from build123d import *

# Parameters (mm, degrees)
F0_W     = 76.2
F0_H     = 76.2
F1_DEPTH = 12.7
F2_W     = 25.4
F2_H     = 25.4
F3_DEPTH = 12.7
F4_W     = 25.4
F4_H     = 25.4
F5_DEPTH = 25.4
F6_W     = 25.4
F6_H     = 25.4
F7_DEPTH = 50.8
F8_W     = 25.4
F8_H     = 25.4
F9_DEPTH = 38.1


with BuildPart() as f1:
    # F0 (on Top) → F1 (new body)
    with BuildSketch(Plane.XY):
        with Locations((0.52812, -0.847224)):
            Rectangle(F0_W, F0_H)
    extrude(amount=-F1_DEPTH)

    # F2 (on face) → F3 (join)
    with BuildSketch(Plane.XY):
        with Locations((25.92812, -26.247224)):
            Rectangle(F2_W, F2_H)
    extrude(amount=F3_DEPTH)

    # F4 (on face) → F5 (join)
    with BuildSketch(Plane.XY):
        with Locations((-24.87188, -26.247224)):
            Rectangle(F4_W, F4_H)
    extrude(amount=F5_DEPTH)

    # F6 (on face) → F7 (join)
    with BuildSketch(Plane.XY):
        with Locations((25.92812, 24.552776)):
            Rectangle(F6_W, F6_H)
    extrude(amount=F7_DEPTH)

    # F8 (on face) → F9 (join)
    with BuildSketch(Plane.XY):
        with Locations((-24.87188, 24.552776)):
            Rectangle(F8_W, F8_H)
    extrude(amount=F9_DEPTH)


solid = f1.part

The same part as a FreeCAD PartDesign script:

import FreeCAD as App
import Part
import Sketcher
Q = App.Units.Quantity

doc = App.newDocument("Part")
body = doc.addObject("PartDesign::Body", "Body")

# Sketch on XY plane
sketch1 = doc.addObject("Sketcher::SketchObject", "Sketch")
body.addObject(sketch1)
sketch1.AttachmentSupport = (doc.XY_Plane, [""])
sketch1.MapMode = "FlatFace"
sketch1.addGeometry(Part.LineSegment(App.Vector(-38, 37, 0), App.Vector(-38, -39, 0)), False)
sketch1.addGeometry(Part.LineSegment(App.Vector(-38, -39, 0), App.Vector(39, -39, 0)), False)
sketch1.addGeometry(Part.LineSegment(App.Vector(39, -39, 0), App.Vector(39, 37, 0)), False)
sketch1.addGeometry(Part.LineSegment(App.Vector(39, 37, 0), App.Vector(-38, 37, 0)), False)
sketch1.addConstraint(Sketcher.Constraint("Coincident", 0, 2, 1, 1))
sketch1.addConstraint(Sketcher.Constraint("Coincident", 1, 2, 2, 1))
sketch1.addConstraint(Sketcher.Constraint("Coincident", 2, 2, 3, 1))
sketch1.addConstraint(Sketcher.Constraint("Coincident", 3, 2, 0, 1))
sketch1.addConstraint(Sketcher.Constraint("Vertical", 0))
sketch1.addConstraint(Sketcher.Constraint("Horizontal", 1))
sketch1.addConstraint(Sketcher.Constraint("Vertical", 2))
sketch1.addConstraint(Sketcher.Constraint("Horizontal", 3))
sketch1.addConstraint(Sketcher.Constraint("Equal", 3, 0))
sketch1.addConstraint(Sketcher.Constraint("DistanceX", 1, 1, 1, 2, Q("3 in")))
sketch1.addConstraint(Sketcher.Constraint("DistanceX", 0, 2, -1, 1, Q("37.57188 mm")))
sketch1.addConstraint(Sketcher.Constraint("DistanceY", 0, 2, -1, 1, Q("38.947224 mm")))
pad1 = doc.addObject("PartDesign::Pad", "Pad")
body.addObject(pad1)
pad1.Profile = sketch1
pad1.Length = Q("0.5 in")
pad1.Reversed = True

# Sketch on XY plane
sketch2 = doc.addObject("Sketcher::SketchObject", "Sketch001")
body.addObject(sketch2)
sketch2.AttachmentSupport = (doc.XY_Plane, [""])
sketch2.MapMode = "FlatFace"
sketch2.addGeometry(Part.LineSegment(App.Vector(13, -14, 0), App.Vector(13, -39, 0)), False)
sketch2.addGeometry(Part.LineSegment(App.Vector(13, -39, 0), App.Vector(39, -39, 0)), False)
sketch2.addGeometry(Part.LineSegment(App.Vector(39, -39, 0), App.Vector(39, -14, 0)), False)
sketch2.addGeometry(Part.LineSegment(App.Vector(39, -14, 0), App.Vector(13, -14, 0)), False)
sketch2.addConstraint(Sketcher.Constraint("Coincident", 0, 2, 1, 1))
sketch2.addConstraint(Sketcher.Constraint("Coincident", 1, 2, 2, 1))
sketch2.addConstraint(Sketcher.Constraint("Coincident", 2, 2, 3, 1))
sketch2.addConstraint(Sketcher.Constraint("Coincident", 3, 2, 0, 1))
sketch2.addConstraint(Sketcher.Constraint("Vertical", 0))
sketch2.addConstraint(Sketcher.Constraint("Horizontal", 1))
sketch2.addConstraint(Sketcher.Constraint("Vertical", 2))
sketch2.addConstraint(Sketcher.Constraint("Horizontal", 3))
sketch2.addConstraint(Sketcher.Constraint("Equal", 3, 0))
sketch2.addConstraint(Sketcher.Constraint("DistanceX", 1, 1, 1, 2, Q("1 in")))
sketch2.addConstraint(Sketcher.Constraint("DistanceX", -1, 1, 0, 2, Q("13.22812 mm")))
sketch2.addConstraint(Sketcher.Constraint("DistanceY", 0, 2, -1, 1, Q("38.947224 mm")))
pad2 = doc.addObject("PartDesign::Pad", "Pad001")
body.addObject(pad2)
pad2.Profile = sketch2
pad2.Length = Q("0.5 in")

# Sketch on XY plane
sketch3 = doc.addObject("Sketcher::SketchObject", "Sketch002")
body.addObject(sketch3)
sketch3.AttachmentSupport = (doc.XY_Plane, [""])
sketch3.MapMode = "FlatFace"
sketch3.addGeometry(Part.LineSegment(App.Vector(-38, -14, 0), App.Vector(-38, -39, 0)), False)
sketch3.addGeometry(Part.LineSegment(App.Vector(-38, -39, 0), App.Vector(-12, -39, 0)), False)
sketch3.addGeometry(Part.LineSegment(App.Vector(-12, -39, 0), App.Vector(-12, -14, 0)), False)
sketch3.addGeometry(Part.LineSegment(App.Vector(-12, -14, 0), App.Vector(-38, -14, 0)), False)
sketch3.addConstraint(Sketcher.Constraint("Coincident", 0, 2, 1, 1))
sketch3.addConstraint(Sketcher.Constraint("Coincident", 1, 2, 2, 1))
sketch3.addConstraint(Sketcher.Constraint("Coincident", 2, 2, 3, 1))
sketch3.addConstraint(Sketcher.Constraint("Coincident", 3, 2, 0, 1))
sketch3.addConstraint(Sketcher.Constraint("Vertical", 0))
sketch3.addConstraint(Sketcher.Constraint("Horizontal", 1))
sketch3.addConstraint(Sketcher.Constraint("Vertical", 2))
sketch3.addConstraint(Sketcher.Constraint("Horizontal", 3))
sketch3.addConstraint(Sketcher.Constraint("Equal", 3, 0))
sketch3.addConstraint(Sketcher.Constraint("DistanceX", 1, 1, 1, 2, Q("1 in")))
sketch3.addConstraint(Sketcher.Constraint("DistanceX", 0, 2, -1, 1, Q("37.57188 mm")))
sketch3.addConstraint(Sketcher.Constraint("DistanceY", 0, 2, -1, 1, Q("38.947224 mm")))
pad3 = doc.addObject("PartDesign::Pad", "Pad002")
body.addObject(pad3)
pad3.Profile = sketch3
pad3.Length = Q("1 in")

# Sketch on XY plane
sketch4 = doc.addObject("Sketcher::SketchObject", "Sketch003")
body.addObject(sketch4)
sketch4.AttachmentSupport = (doc.XY_Plane, [""])
sketch4.MapMode = "FlatFace"
sketch4.addGeometry(Part.LineSegment(App.Vector(13, 37, 0), App.Vector(13, 12, 0)), False)
sketch4.addGeometry(Part.LineSegment(App.Vector(13, 12, 0), App.Vector(39, 12, 0)), False)
sketch4.addGeometry(Part.LineSegment(App.Vector(39, 12, 0), App.Vector(39, 37, 0)), False)
sketch4.addGeometry(Part.LineSegment(App.Vector(39, 37, 0), App.Vector(13, 37, 0)), False)
sketch4.addConstraint(Sketcher.Constraint("Coincident", 0, 2, 1, 1))
sketch4.addConstraint(Sketcher.Constraint("Coincident", 1, 2, 2, 1))
sketch4.addConstraint(Sketcher.Constraint("Coincident", 2, 2, 3, 1))
sketch4.addConstraint(Sketcher.Constraint("Coincident", 3, 2, 0, 1))
sketch4.addConstraint(Sketcher.Constraint("Vertical", 0))
sketch4.addConstraint(Sketcher.Constraint("Horizontal", 1))
sketch4.addConstraint(Sketcher.Constraint("Vertical", 2))
sketch4.addConstraint(Sketcher.Constraint("Horizontal", 3))
sketch4.addConstraint(Sketcher.Constraint("Equal", 3, 0))
sketch4.addConstraint(Sketcher.Constraint("DistanceX", 1, 1, 1, 2, Q("1 in")))
sketch4.addConstraint(Sketcher.Constraint("DistanceX", -1, 1, 0, 2, Q("13.22812 mm")))
sketch4.addConstraint(Sketcher.Constraint("DistanceY", -1, 1, 0, 2, Q("11.852776 mm")))
pad4 = doc.addObject("PartDesign::Pad", "Pad003")
body.addObject(pad4)
pad4.Profile = sketch4
pad4.Length = Q("2 in")

# Sketch on XY plane
sketch5 = doc.addObject("Sketcher::SketchObject", "Sketch004")
body.addObject(sketch5)
sketch5.AttachmentSupport = (doc.XY_Plane, [""])
sketch5.MapMode = "FlatFace"
sketch5.addGeometry(Part.LineSegment(App.Vector(-38, 37, 0), App.Vector(-38, 12, 0)), False)
sketch5.addGeometry(Part.LineSegment(App.Vector(-38, 12, 0), App.Vector(-12, 12, 0)), False)
sketch5.addGeometry(Part.LineSegment(App.Vector(-12, 12, 0), App.Vector(-12, 37, 0)), False)
sketch5.addGeometry(Part.LineSegment(App.Vector(-12, 37, 0), App.Vector(-38, 37, 0)), False)
sketch5.addConstraint(Sketcher.Constraint("Coincident", 0, 2, 1, 1))
sketch5.addConstraint(Sketcher.Constraint("Coincident", 1, 2, 2, 1))
sketch5.addConstraint(Sketcher.Constraint("Coincident", 2, 2, 3, 1))
sketch5.addConstraint(Sketcher.Constraint("Coincident", 3, 2, 0, 1))
sketch5.addConstraint(Sketcher.Constraint("Vertical", 0))
sketch5.addConstraint(Sketcher.Constraint("Horizontal", 1))
sketch5.addConstraint(Sketcher.Constraint("Vertical", 2))
sketch5.addConstraint(Sketcher.Constraint("Horizontal", 3))
sketch5.addConstraint(Sketcher.Constraint("Equal", 3, 0))
sketch5.addConstraint(Sketcher.Constraint("DistanceX", 1, 1, 1, 2, Q("1 in")))
sketch5.addConstraint(Sketcher.Constraint("DistanceX", 0, 2, -1, 1, Q("37.57188 mm")))
sketch5.addConstraint(Sketcher.Constraint("DistanceY", -1, 1, 0, 2, Q("11.852776 mm")))
pad5 = doc.addObject("PartDesign::Pad", "Pad004")
body.addObject(pad5)
pad5.Profile = sketch5
pad5.Length = Q("1.5 in")

doc.recompute()
